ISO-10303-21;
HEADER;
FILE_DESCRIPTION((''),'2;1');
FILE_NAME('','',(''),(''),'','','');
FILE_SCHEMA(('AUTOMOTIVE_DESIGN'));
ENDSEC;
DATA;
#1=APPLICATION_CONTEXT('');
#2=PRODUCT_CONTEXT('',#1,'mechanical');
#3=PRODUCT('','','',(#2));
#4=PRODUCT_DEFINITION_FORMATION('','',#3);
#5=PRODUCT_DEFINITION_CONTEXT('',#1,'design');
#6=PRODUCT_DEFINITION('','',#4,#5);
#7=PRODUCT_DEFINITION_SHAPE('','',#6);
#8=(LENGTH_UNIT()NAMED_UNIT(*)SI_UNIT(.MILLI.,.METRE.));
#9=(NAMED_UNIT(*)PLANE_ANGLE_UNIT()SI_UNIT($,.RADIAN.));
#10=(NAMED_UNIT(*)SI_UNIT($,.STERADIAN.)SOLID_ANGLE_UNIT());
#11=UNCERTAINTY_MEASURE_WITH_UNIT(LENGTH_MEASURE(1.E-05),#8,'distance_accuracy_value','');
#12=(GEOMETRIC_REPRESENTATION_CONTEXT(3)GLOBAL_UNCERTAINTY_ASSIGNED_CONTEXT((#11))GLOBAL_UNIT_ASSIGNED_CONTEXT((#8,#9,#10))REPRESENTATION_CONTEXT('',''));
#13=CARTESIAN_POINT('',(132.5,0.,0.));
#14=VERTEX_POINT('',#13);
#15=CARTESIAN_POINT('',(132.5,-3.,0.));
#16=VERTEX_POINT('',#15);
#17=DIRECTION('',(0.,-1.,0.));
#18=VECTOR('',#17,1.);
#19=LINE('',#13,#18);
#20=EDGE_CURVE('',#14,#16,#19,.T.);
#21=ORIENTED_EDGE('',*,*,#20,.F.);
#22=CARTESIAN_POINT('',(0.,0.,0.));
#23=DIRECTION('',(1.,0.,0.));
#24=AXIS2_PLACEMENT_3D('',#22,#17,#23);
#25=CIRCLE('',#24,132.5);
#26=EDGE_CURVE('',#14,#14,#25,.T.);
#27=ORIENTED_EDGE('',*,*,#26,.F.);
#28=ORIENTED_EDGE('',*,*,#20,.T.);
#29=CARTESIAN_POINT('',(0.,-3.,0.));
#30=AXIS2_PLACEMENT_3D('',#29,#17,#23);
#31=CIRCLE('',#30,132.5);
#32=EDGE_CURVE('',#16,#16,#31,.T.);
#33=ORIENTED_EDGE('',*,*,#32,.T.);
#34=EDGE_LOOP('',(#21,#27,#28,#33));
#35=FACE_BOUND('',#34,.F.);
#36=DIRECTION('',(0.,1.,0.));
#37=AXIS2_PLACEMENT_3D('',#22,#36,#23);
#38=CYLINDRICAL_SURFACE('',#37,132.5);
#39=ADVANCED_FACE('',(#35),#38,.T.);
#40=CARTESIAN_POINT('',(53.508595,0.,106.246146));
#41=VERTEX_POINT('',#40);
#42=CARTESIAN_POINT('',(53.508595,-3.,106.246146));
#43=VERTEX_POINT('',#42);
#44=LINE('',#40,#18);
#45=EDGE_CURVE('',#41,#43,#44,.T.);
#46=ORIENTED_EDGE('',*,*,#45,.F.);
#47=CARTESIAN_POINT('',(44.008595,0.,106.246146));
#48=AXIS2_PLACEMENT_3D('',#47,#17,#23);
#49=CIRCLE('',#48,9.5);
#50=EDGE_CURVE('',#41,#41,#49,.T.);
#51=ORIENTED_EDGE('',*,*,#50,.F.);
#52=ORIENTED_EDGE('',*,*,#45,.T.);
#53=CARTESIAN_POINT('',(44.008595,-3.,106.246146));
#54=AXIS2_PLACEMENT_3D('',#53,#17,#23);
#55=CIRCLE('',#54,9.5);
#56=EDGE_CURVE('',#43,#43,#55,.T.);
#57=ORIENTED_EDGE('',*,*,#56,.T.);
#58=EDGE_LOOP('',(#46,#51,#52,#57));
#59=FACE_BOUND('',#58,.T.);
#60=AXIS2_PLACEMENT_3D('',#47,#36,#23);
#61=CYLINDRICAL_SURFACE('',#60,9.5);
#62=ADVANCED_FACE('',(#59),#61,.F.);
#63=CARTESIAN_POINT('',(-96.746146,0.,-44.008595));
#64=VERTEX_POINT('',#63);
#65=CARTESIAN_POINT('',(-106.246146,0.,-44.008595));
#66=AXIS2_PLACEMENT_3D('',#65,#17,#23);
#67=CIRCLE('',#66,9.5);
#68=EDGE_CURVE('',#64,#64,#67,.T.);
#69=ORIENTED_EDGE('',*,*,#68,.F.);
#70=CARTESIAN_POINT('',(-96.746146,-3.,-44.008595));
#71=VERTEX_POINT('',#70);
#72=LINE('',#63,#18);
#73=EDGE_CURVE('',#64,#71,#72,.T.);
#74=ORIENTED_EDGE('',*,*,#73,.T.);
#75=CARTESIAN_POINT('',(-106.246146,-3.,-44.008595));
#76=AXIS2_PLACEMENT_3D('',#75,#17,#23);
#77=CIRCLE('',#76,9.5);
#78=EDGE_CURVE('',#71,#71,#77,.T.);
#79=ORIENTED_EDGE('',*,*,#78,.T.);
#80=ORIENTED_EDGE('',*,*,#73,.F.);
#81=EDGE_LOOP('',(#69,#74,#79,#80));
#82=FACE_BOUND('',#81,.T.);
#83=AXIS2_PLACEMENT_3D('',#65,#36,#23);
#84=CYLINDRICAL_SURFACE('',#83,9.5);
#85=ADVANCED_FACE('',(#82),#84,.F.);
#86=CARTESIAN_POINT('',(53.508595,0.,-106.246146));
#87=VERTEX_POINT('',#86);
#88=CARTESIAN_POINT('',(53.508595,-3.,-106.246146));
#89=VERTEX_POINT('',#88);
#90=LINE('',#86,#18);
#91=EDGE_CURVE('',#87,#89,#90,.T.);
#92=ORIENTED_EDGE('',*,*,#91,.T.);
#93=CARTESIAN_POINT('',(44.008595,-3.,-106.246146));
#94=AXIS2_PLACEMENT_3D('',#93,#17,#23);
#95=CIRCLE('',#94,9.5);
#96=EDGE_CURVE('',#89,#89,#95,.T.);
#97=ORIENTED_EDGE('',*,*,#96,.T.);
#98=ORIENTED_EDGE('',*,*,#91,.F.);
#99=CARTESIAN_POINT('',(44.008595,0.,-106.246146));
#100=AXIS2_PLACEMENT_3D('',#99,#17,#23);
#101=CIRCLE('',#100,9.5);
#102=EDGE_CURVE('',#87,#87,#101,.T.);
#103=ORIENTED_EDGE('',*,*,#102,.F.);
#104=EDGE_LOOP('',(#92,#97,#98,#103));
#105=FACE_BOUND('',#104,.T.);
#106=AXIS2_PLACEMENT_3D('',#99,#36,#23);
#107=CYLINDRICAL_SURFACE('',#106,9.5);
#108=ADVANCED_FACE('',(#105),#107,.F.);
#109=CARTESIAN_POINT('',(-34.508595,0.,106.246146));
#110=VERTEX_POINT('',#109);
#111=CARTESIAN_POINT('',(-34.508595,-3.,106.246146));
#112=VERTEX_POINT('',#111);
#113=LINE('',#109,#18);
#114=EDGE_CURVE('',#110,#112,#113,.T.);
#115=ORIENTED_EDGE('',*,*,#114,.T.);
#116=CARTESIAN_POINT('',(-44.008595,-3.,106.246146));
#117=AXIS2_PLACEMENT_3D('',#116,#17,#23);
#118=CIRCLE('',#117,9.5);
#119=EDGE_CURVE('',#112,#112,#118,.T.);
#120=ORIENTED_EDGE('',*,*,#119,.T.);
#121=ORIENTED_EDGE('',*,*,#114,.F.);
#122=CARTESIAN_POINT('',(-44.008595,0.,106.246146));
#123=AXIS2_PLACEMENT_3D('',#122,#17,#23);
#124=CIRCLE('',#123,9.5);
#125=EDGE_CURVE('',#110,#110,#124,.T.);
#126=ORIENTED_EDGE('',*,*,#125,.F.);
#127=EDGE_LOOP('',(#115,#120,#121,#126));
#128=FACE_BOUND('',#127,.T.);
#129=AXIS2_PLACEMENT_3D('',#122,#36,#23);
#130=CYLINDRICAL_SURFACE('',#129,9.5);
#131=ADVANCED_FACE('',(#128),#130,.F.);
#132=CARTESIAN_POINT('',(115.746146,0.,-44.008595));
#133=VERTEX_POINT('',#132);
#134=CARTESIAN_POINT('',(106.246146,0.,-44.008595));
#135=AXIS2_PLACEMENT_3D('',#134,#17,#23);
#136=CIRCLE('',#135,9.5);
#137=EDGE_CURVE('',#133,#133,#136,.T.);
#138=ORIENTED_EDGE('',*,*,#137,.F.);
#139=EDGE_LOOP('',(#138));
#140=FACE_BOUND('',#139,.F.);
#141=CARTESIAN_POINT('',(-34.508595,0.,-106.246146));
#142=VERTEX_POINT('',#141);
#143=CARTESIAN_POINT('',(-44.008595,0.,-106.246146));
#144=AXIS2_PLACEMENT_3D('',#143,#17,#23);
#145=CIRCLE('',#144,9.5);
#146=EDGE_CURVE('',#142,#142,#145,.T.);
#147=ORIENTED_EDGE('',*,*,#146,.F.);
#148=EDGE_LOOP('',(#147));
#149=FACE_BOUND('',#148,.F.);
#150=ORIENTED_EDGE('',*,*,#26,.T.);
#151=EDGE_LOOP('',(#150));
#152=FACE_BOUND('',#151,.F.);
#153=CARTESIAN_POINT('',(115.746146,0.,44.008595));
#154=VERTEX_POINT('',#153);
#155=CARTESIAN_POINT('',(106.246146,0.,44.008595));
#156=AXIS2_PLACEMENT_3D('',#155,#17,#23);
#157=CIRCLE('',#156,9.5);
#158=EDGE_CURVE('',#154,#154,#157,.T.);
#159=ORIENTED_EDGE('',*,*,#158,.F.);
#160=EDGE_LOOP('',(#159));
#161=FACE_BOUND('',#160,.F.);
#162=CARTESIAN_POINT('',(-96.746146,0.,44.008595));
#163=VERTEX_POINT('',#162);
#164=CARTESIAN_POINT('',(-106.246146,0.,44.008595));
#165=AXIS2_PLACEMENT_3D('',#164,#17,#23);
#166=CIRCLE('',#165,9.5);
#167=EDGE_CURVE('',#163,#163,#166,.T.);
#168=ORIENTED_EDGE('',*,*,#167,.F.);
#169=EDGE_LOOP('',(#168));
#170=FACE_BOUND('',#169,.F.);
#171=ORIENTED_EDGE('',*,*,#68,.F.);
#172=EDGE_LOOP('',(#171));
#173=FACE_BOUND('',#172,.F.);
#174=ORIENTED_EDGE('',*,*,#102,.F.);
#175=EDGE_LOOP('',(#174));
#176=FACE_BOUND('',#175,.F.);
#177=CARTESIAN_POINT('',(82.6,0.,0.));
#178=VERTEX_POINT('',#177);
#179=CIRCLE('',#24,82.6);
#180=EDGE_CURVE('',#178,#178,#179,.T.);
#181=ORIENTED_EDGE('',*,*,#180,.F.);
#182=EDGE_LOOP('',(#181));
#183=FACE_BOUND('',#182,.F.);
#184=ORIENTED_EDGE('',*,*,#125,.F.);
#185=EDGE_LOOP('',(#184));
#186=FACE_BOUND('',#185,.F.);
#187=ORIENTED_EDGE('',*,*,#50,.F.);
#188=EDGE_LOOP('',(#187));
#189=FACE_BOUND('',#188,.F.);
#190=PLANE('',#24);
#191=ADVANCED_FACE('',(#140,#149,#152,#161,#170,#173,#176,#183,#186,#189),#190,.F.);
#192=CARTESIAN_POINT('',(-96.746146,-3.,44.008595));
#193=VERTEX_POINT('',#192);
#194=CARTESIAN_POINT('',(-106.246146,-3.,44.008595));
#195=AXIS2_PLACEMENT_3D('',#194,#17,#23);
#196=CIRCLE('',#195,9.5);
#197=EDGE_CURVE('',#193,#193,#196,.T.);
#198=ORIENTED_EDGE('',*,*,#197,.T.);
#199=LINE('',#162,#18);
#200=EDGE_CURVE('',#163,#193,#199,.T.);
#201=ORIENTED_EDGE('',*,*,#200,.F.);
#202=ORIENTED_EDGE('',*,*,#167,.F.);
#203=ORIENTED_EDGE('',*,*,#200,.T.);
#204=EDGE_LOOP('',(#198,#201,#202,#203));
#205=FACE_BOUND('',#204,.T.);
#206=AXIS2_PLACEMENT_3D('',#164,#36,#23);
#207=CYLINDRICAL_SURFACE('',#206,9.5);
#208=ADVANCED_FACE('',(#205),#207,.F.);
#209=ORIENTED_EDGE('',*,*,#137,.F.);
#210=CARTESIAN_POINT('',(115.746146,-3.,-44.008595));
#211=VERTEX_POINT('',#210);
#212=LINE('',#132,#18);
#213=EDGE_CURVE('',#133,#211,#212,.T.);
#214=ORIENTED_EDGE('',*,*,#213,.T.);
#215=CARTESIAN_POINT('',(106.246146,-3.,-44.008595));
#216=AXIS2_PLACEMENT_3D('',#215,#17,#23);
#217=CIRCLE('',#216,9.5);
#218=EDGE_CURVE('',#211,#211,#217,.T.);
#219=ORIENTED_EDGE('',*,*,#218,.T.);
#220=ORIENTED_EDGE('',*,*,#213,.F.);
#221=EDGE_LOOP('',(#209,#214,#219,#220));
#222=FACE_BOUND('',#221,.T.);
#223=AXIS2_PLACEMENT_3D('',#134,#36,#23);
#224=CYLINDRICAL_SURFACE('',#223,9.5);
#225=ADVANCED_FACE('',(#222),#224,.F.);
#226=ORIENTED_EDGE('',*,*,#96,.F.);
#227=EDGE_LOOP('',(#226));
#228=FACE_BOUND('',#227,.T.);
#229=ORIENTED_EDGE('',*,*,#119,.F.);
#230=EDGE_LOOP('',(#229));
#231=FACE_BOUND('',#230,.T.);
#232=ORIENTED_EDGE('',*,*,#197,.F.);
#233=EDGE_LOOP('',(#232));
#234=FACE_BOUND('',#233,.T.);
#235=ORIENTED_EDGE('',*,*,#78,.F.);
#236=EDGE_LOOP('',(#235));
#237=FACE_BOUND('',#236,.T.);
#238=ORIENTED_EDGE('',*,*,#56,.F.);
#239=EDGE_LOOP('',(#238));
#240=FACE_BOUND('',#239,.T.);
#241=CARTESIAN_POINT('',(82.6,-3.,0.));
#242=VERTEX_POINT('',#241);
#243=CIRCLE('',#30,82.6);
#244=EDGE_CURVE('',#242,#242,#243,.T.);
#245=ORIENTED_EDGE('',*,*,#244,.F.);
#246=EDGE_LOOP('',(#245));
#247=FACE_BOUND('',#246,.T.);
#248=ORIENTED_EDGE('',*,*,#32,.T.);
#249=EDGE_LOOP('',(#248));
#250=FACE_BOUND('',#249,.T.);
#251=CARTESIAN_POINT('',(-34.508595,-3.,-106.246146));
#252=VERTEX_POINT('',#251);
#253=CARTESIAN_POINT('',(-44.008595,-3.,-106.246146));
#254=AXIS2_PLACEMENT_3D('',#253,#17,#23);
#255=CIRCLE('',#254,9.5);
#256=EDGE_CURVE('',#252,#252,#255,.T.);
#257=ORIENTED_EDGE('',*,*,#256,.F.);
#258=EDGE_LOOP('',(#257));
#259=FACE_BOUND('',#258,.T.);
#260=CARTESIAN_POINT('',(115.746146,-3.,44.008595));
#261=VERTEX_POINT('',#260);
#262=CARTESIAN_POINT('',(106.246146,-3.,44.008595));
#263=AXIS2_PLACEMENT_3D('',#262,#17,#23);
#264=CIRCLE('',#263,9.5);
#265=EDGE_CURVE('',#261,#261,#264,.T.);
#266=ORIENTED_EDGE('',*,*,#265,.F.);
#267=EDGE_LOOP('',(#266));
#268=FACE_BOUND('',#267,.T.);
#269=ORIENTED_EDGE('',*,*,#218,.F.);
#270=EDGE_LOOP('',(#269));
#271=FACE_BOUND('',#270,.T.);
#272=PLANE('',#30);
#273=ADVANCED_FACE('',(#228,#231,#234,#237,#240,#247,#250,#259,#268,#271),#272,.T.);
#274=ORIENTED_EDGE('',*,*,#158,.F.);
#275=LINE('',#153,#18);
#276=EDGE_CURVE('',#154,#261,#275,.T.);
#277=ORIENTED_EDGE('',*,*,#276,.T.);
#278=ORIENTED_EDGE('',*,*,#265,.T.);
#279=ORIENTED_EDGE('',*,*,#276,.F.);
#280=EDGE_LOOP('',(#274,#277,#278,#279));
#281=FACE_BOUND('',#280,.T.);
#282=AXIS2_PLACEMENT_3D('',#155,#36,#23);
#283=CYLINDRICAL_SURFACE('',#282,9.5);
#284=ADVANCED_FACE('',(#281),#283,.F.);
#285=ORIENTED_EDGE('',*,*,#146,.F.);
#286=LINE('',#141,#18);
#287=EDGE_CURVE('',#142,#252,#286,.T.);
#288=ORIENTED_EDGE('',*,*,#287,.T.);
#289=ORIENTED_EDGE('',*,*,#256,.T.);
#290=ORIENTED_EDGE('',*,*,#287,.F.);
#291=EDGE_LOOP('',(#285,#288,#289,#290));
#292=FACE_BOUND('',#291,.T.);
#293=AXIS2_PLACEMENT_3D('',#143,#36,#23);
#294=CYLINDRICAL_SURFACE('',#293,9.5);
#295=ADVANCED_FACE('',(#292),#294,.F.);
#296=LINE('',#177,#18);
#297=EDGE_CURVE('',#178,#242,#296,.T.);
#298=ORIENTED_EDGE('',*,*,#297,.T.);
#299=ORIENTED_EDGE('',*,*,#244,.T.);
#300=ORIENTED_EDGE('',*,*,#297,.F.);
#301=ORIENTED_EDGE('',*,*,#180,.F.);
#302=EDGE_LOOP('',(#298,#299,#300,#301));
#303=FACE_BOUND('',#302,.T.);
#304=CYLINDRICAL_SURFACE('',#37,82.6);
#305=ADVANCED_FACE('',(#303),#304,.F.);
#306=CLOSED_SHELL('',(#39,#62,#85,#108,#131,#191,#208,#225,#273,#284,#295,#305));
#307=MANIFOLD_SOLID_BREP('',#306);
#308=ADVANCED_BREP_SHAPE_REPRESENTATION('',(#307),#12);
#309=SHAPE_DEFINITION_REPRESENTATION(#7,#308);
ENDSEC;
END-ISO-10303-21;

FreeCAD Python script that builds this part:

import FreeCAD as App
import Part
import Sketcher

V = App.Vector
Q = App.Units.Quantity

doc = App.newDocument("Part")
params = doc.addObject("Spreadsheet::Sheet", "Params")
for row, (alias, value) in enumerate([
    ("sketch1_diameter", "265 mm"),
    ("sketch1_diameter2", "19 mm"),
    ("sketch1_diameter3", "165.2 mm"),
    ("pad1_length", "3 mm"),
], start=1):
    params.set(f"A{row}", alias)
    params.set(f"B{row}", "=" + value)
    params.setAlias(f"B{row}", alias)

body = doc.addObject("PartDesign::Body", "Body")

# Sketch on XZ plane
sketch1 = body.newObject("Sketcher::SketchObject", "Sketch")
sketch1.AttachmentSupport = (doc.getObject("XZ_Plane"), [""])
sketch1.MapMode = "FlatFace"
sketch1.addGeometry(Part.Circle(V(0, 0, 0), V(0, 0, 1), 132), False)
sketch1.addGeometry(Part.Circle(V(-44, -106, 0), V(0, 0, 1), 10), False)
sketch1.addGeometry(Part.Circle(V(-106, -44, 0), V(0, 0, 1), 10), False)
sketch1.addGeometry(Part.Circle(V(44, -106, 0), V(0, 0, 1), 10), False)
sketch1.addGeometry(Part.Circle(V(106, -44, 0), V(0, 0, 1), 10), False)
sketch1.addGeometry(Part.Circle(V(-106, 44, 0), V(0, 0, 1), 10), False)
sketch1.addGeometry(Part.Circle(V(-44, 106, 0), V(0, 0, 1), 10), False)
sketch1.addGeometry(Part.Circle(V(0, 0, 0), V(0, 0, 1), 83), False)
sketch1.addGeometry(Part.Circle(V(106, 44, 0), V(0, 0, 1), 10), False)
sketch1.addGeometry(Part.Circle(V(44, 106, 0), V(0, 0, 1), 10), False)
sketch1.addConstraint(Sketcher.Constraint("Coincident", 0, 3, -1, 1))
sketch1.addConstraint(Sketcher.Constraint("Coincident", 7, 3, -1, 1))
sketch1.addConstraint(Sketcher.Constraint("Equal", 1, 2))
sketch1.addConstraint(Sketcher.Constraint("Equal", 2, 3))
sketch1.addConstraint(Sketcher.Constraint("Equal", 3, 4))
sketch1.addConstraint(Sketcher.Constraint("Equal", 4, 5))
sketch1.addConstraint(Sketcher.Constraint("Equal", 5, 6))
sketch1.addConstraint(Sketcher.Constraint("Equal", 6, 8))
sketch1.addConstraint(Sketcher.Constraint("Equal", 8, 9))
sketch1.addConstraint(Sketcher.Constraint("Symmetric", 4, 3, 5, 3, -1, 1))
sketch1.addConstraint(Sketcher.Constraint("Symmetric", 3, 3, 6, 3, -1, 1))
sketch1.addConstraint(Sketcher.Constraint("Symmetric", 2, 3, 8, 3, -1, 1))
sketch1.addConstraint(Sketcher.Constraint("Symmetric", 1, 3, 9, 3, -1, 1))
sketch1.addConstraint(Sketcher.Constraint("Symmetric", 1, 3, 3, 3, -2))
sketch1.addConstraint(Sketcher.Constraint("Symmetric", 2, 3, 4, 3, -2))
sketch1.addConstraint(Sketcher.Constraint("Diameter", 0, Q("265 mm")))
sketch1.addConstraint(Sketcher.Constraint("Diameter", 1, Q("19 mm")))
sketch1.addConstraint(Sketcher.Constraint("Diameter", 7, Q("165.2 mm")))
sketch1.addConstraint(Sketcher.Constraint("DistanceX", 2, 3, 1, 3, Q("62.237551 mm")))
sketch1.addConstraint(Sketcher.Constraint("DistanceY", 1, 3, 2, 3, Q("62.237551 mm")))
sketch1.addConstraint(Sketcher.Constraint("DistanceX", 1, 3, 3, 3, Q("88.01719 mm")))
sketch1.addConstraint(Sketcher.Constraint("DistanceY", 2, 3, 5, 3, Q("88.01719 mm")))
sketch1.setExpression("Constraints[15]", "Params.sketch1_diameter")
sketch1.setExpression("Constraints[16]", "Params.sketch1_diameter2")
sketch1.setExpression("Constraints[17]", "Params.sketch1_diameter3")
pad1 = body.newObject("PartDesign::Pad", "Pad")
pad1.Profile = sketch1
pad1.setExpression("Length", "Params.pad1_length")

doc.recompute()
